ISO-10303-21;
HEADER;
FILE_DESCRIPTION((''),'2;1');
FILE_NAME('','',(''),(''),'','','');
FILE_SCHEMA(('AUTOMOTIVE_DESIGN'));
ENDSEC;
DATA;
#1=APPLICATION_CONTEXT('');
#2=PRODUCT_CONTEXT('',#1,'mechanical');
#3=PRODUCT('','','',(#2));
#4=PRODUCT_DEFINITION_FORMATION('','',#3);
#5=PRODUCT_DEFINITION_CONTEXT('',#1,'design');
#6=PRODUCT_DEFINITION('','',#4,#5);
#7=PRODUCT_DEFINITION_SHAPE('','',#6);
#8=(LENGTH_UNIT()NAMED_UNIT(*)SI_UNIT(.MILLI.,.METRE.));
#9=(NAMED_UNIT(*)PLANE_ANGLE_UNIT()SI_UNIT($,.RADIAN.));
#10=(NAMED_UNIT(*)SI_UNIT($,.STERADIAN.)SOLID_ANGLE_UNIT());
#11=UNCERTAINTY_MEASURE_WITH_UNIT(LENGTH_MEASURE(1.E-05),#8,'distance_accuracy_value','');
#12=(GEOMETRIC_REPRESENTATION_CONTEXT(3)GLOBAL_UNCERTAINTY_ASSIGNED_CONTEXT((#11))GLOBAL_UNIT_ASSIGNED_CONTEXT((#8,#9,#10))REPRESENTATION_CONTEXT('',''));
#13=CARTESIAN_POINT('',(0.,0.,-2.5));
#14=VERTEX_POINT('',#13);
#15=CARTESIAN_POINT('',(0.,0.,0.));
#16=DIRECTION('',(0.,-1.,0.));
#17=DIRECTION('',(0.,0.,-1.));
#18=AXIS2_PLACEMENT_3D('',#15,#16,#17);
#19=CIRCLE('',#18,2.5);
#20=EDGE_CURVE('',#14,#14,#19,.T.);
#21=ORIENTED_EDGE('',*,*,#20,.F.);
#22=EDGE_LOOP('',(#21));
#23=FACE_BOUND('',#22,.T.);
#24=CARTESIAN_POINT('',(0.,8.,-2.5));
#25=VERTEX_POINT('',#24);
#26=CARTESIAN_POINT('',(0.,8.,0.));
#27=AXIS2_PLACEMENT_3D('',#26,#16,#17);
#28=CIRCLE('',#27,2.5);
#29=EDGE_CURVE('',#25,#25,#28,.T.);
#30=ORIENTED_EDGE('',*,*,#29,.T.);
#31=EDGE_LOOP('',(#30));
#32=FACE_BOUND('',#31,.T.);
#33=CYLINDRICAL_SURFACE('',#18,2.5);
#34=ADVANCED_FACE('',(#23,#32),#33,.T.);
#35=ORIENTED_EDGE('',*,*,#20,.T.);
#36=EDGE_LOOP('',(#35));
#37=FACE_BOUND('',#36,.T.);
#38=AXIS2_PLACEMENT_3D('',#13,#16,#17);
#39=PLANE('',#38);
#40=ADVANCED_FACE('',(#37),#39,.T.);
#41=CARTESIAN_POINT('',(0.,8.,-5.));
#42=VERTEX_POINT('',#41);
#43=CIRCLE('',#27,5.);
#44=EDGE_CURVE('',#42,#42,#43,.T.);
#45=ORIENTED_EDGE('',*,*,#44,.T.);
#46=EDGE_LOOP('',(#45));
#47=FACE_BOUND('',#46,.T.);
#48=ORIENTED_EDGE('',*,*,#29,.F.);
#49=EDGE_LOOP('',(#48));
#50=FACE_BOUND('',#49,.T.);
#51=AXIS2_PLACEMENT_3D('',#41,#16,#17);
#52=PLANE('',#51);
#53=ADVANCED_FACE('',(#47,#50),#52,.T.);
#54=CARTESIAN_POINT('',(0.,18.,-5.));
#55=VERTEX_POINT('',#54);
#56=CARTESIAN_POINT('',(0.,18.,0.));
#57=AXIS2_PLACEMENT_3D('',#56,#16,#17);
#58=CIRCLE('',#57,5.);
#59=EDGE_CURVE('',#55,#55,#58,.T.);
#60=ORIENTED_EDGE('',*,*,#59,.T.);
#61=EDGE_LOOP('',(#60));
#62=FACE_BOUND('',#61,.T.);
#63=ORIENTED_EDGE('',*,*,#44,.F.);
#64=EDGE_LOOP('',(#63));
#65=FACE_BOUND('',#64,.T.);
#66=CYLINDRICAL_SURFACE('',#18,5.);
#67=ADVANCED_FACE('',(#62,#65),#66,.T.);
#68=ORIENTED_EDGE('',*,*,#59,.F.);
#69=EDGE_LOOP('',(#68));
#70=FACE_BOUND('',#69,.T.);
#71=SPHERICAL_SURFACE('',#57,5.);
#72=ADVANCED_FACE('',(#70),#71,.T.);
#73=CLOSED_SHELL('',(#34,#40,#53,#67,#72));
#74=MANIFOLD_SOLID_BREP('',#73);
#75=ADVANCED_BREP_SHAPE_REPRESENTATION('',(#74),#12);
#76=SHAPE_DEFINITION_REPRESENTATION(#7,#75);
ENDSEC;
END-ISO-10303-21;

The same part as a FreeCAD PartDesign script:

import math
import FreeCAD as App
import Part
import Sketcher
from FreeCAD import Vector
Q = App.Units.Quantity

doc = App.newDocument("Part")
params = doc.addObject("Spreadsheet::Sheet", "Params")
for row, (alias, value) in enumerate([
    ("sketch1_radius", "5 mm"),
    ("sketch1_width", "10 mm"),
    ("sketch1_width2", "23 mm"),
    ("revolution_angle", "360 deg"),
], start=1):
    params.set(f"A{row}", alias)
    params.set(f"B{row}", "=" + value)
    params.setAlias(f"B{row}", alias)

body = doc.addObject("PartDesign::Body", "Body")

sketch1 = body.newObject("Sketcher::SketchObject", "Sketch")
sketch1.AttachmentSupport = (doc.getObject("YZ_Plane"), [""])
sketch1.MapMode = "FlatFace"
sketch1.addGeometry(Part.LineSegment(Vector(8, -5, 0), Vector(18, -5, 0)), False)
sketch1.addGeometry(Part.ArcOfCircle(Part.Circle(Vector(18, 0, 0), Vector(0, 0, 1), 5), math.radians(-90), math.radians(0)), False)
sketch1.addGeometry(Part.LineSegment(Vector(23, 0, 0), Vector(0, 0, 0)), False)
sketch1.addGeometry(Part.LineSegment(Vector(0, 0, 0), Vector(0, -2.5, 0)), False)
sketch1.addGeometry(Part.LineSegment(Vector(0, -2.5, 0), Vector(8, -2.5, 0)), False)
sketch1.addGeometry(Part.LineSegment(Vector(8, -2.5, 0), Vector(8, -5, 0)), False)
sketch1.addConstraint(Sketcher.Constraint("Tangent", 0, 2, 1, 1))
sketch1.addConstraint(Sketcher.Constraint("Coincident", 1, 2, 2, 1))
sketch1.addConstraint(Sketcher.Constraint("Coincident", 2, 2, 3, 1))
sketch1.addConstraint(Sketcher.Constraint("Coincident", 3, 2, 4, 1))
sketch1.addConstraint(Sketcher.Constraint("Coincident", 4, 2, 5, 1))
sketch1.addConstraint(Sketcher.Constraint("Coincident", 5, 2, 0, 1))
sketch1.addConstraint(Sketcher.Constraint("Horizontal", 0))
sketch1.addConstraint(Sketcher.Constraint("Horizontal", 2))
sketch1.addConstraint(Sketcher.Constraint("Vertical", 3))
sketch1.addConstraint(Sketcher.Constraint("Horizontal", 4))
sketch1.addConstraint(Sketcher.Constraint("Vertical", 5))
sketch1.addConstraint(Sketcher.Constraint("Coincident", 2, 2, -1, 1))
sketch1.addConstraint(Sketcher.Constraint("PointOnObject", 1, 3, -1))
sketch1.addConstraint(Sketcher.Constraint("Equal", 3, 5))
sketch1.addConstraint(Sketcher.Constraint("Radius", 1, Q("5 mm")))
sketch1.addConstraint(Sketcher.Constraint("DistanceX", 0, 1, 0, 2, Q("10 mm")))
sketch1.addConstraint(Sketcher.Constraint("DistanceX", 2, 2, 2, 1, Q("23 mm")))
sketch1.setExpression("Constraints[14]", "Params.sketch1_radius")
sketch1.setExpression("Constraints[15]", "Params.sketch1_width")
sketch1.setExpression("Constraints[16]", "Params.sketch1_width2")
revolution = body.newObject("PartDesign::Revolution", "Revolution")
revolution.Profile = sketch1
revolution.ReferenceAxis = (sketch1, ["H_Axis"])
revolution.setExpression("Angle", "Params.revolution_angle")

doc.recompute()
